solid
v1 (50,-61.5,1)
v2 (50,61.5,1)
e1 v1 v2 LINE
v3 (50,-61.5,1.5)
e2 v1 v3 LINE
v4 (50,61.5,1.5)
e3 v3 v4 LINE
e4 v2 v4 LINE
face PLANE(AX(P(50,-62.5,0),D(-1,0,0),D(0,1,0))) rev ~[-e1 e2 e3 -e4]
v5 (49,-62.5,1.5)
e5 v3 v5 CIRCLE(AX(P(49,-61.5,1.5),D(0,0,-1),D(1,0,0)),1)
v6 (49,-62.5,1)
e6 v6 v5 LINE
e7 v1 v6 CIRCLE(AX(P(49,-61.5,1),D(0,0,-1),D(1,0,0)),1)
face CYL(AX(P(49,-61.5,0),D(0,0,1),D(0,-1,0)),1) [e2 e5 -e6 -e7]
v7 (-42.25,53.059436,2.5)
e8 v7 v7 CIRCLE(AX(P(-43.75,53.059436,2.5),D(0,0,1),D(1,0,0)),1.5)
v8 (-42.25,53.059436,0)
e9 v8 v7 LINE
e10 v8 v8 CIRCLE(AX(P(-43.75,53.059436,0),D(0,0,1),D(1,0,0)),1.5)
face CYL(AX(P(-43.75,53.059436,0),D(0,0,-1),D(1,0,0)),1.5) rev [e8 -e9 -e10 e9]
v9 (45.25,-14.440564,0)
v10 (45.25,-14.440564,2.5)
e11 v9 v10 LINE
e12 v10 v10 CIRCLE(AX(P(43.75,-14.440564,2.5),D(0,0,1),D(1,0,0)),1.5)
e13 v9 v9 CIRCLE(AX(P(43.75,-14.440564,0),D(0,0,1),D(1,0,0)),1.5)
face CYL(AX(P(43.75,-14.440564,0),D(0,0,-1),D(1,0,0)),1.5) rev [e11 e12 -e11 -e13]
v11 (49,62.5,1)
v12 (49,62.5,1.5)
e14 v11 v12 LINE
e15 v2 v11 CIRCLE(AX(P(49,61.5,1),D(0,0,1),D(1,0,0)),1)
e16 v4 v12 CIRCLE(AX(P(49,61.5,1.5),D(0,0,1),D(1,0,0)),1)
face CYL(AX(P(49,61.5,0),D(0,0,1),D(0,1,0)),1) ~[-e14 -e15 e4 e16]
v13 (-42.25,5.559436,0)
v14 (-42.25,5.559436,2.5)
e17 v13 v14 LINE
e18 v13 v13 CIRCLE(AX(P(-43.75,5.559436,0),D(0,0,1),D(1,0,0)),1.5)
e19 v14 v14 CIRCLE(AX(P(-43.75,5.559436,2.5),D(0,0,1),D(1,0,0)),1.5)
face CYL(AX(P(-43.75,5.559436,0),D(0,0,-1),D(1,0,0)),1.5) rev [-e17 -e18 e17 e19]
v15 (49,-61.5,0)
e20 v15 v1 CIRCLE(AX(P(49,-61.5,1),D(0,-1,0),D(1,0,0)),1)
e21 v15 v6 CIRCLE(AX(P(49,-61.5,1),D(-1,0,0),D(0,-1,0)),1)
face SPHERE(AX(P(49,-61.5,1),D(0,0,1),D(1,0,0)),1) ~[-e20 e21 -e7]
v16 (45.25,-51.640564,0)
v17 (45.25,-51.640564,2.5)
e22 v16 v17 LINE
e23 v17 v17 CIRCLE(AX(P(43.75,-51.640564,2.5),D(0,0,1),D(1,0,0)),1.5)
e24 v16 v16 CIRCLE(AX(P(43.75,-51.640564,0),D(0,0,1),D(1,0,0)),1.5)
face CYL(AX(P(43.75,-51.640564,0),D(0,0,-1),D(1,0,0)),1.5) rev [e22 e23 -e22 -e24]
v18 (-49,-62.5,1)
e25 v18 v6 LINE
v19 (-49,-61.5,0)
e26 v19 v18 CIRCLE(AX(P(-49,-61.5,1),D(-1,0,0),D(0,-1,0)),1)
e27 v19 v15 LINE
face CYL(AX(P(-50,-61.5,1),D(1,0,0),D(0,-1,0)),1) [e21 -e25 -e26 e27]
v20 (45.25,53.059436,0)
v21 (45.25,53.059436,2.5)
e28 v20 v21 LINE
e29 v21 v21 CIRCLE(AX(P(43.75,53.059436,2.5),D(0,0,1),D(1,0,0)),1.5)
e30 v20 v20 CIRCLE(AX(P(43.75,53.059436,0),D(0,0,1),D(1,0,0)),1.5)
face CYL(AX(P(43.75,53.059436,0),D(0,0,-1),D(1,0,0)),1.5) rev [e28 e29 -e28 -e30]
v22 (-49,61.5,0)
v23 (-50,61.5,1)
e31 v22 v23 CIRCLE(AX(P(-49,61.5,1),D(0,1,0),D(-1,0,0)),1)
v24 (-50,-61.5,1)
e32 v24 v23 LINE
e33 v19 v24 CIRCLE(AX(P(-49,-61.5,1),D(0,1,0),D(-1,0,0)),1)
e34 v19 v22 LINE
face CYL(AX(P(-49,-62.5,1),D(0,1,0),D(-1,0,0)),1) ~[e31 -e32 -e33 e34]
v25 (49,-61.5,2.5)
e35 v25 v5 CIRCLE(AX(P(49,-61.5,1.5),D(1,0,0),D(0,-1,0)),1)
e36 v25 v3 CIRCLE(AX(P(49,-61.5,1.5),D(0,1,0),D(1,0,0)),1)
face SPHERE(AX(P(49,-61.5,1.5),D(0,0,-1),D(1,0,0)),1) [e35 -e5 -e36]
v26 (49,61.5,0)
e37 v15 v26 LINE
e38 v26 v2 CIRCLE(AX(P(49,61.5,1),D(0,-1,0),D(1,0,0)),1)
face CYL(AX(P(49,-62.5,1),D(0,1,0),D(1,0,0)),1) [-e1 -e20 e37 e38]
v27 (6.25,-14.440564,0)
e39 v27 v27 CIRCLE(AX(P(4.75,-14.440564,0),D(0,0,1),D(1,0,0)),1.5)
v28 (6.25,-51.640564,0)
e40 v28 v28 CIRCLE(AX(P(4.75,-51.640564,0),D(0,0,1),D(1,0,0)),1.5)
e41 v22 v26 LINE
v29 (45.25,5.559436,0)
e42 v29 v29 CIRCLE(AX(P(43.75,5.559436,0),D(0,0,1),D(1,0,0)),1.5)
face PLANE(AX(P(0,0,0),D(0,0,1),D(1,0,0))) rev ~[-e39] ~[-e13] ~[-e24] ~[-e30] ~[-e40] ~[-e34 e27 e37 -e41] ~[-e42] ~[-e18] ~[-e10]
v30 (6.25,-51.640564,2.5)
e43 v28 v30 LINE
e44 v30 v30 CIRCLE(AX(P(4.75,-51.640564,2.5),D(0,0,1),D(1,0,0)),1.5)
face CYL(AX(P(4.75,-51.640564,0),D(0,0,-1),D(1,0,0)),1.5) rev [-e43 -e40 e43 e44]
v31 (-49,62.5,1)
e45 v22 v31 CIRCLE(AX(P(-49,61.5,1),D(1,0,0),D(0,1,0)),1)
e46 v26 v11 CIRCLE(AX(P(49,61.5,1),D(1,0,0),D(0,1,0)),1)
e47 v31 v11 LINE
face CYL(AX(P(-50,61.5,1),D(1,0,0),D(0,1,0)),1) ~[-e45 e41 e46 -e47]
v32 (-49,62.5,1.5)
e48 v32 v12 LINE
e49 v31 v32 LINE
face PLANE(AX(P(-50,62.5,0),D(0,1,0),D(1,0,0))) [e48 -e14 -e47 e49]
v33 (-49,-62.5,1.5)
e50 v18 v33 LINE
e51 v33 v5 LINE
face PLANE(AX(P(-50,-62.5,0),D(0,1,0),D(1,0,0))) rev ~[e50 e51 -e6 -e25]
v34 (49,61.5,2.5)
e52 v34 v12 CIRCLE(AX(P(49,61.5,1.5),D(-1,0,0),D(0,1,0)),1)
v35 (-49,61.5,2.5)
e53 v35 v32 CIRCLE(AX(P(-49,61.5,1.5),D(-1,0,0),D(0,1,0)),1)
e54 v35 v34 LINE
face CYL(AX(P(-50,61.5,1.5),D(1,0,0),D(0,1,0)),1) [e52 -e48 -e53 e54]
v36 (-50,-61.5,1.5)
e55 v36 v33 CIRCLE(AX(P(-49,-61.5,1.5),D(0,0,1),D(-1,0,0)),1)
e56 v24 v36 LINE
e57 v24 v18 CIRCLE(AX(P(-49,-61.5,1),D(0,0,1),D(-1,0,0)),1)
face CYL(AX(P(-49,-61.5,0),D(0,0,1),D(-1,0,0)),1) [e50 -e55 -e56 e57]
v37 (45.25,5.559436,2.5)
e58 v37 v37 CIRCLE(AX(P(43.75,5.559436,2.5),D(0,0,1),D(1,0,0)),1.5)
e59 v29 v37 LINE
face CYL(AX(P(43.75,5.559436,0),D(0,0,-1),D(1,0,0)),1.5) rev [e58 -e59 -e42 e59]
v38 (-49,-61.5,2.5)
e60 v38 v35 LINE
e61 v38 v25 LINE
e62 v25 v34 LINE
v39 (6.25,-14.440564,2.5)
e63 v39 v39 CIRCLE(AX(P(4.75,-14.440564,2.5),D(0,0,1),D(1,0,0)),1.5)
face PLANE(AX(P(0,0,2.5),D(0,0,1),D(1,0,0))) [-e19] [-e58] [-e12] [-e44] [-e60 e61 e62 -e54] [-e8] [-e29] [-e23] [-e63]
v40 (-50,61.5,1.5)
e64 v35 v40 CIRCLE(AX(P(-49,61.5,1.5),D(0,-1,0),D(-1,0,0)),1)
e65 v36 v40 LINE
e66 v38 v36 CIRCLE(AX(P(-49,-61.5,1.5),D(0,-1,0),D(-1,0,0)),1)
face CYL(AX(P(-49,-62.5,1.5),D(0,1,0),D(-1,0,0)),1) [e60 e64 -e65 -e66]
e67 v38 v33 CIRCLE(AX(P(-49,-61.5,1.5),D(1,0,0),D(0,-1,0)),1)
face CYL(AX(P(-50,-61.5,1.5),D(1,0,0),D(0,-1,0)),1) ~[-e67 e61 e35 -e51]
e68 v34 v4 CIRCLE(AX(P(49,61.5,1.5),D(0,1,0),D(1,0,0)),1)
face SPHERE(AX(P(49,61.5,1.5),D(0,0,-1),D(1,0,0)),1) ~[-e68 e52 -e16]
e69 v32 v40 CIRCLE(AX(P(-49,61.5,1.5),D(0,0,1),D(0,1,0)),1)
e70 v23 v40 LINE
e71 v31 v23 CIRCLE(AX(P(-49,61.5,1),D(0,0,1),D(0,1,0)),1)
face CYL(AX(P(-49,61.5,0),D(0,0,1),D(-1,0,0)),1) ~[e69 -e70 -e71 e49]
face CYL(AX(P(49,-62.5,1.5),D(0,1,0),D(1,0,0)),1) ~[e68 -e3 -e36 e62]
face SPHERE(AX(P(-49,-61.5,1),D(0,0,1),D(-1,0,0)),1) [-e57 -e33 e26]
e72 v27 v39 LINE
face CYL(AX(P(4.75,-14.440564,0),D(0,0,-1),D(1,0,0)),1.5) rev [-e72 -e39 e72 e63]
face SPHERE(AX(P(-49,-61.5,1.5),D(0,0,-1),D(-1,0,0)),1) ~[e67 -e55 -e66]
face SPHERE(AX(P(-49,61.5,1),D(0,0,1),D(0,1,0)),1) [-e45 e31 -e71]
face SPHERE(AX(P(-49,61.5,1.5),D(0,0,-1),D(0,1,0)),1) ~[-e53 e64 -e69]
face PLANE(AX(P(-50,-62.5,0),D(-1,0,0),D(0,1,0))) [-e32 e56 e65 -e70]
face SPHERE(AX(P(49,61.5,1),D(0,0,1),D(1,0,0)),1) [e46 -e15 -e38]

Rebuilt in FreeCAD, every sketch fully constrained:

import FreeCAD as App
import Part
import Sketcher
from FreeCAD import Vector
Q = App.Units.Quantity


def edges_at(feature, points):
    """Names of the edges that pass closest to the given points."""
    edges = feature.Shape.Edges
    near = lambda p: min(range(len(edges)), key=lambda i: edges[i].distToShape(Part.Vertex(*p))[0])
    return sorted({f"Edge{near(p) + 1}" for p in points})

doc = App.newDocument("Part")
body = doc.addObject("PartDesign::Body", "Body")

# Sketch on XY plane
sketch1 = doc.addObject("Sketcher::SketchObject", "Sketch")
body.addObject(sketch1)
sketch1.AttachmentSupport = (doc.XY_Plane, [""])
sketch1.MapMode = "FlatFace"
sketch1.addGeometry([
    Part.LineSegment(Vector(-50, 62.5, 0), Vector(-50, -62.5, 0)),  # 0
    Part.LineSegment(Vector(-50, -62.5, 0), Vector(50, -62.5, 0)),  # 1
    Part.LineSegment(Vector(50, -62.5, 0), Vector(50, 62.5, 0)),  # 2
    Part.LineSegment(Vector(50, 62.5, 0), Vector(-50, 62.5, 0)),  # 3
    Part.Circle(Vector(4.8, -51.6, 0), Vector(0, 0, 1), 1.5),  # 4
    Part.Circle(Vector(43.8, -51.6, 0), Vector(0, 0, 1), 1.5),  # 5
    Part.Circle(Vector(4.8, -14.4, 0), Vector(0, 0, 1), 1.5),  # 6
    Part.Circle(Vector(43.8, -14.4, 0), Vector(0, 0, 1), 1.5),  # 7
    Part.Circle(Vector(-43.8, 5.6, 0), Vector(0, 0, 1), 1.5),  # 8
    Part.Circle(Vector(-43.8, 53.1, 0), Vector(0, 0, 1), 1.5),  # 9
    Part.Circle(Vector(43.8, 5.6, 0), Vector(0, 0, 1), 1.5),  # 10
    Part.Circle(Vector(43.8, 53.1, 0), Vector(0, 0, 1), 1.5),  # 11
], False)
sketch1.addConstraint([
    Sketcher.Constraint("Coincident", 0, 2, 1, 1),
    Sketcher.Constraint("Coincident", 1, 2, 2, 1),
    Sketcher.Constraint("Coincident", 2, 2, 3, 1),
    Sketcher.Constraint("Coincident", 3, 2, 0, 1),
    Sketcher.Constraint("Vertical", 0),
    Sketcher.Constraint("Horizontal", 1),
    Sketcher.Constraint("Vertical", 2),
    Sketcher.Constraint("Horizontal", 3),
    Sketcher.Constraint("Equal", 4, 5),
    Sketcher.Constraint("Equal", 5, 6),
    Sketcher.Constraint("Equal", 6, 7),
    Sketcher.Constraint("Equal", 7, 8),
    Sketcher.Constraint("Equal", 8, 9),
    Sketcher.Constraint("Equal", 9, 10),
    Sketcher.Constraint("Equal", 10, 11),
    Sketcher.Constraint("Symmetric", 0, 2, 2, 2, -1, 1),
    Sketcher.Constraint("Symmetric", 8, 3, 10, 3, -2),
    Sketcher.Constraint("Symmetric", 9, 3, 11, 3, -2),
    Sketcher.Constraint("Horizontal", 4, 3, 5, 3),
    Sketcher.Constraint("Horizontal", 6, 3, 7, 3),
    Sketcher.Constraint("Vertical", 4, 3, 6, 3),
    Sketcher.Constraint("Vertical", 5, 3, 7, 3),
    Sketcher.Constraint("Vertical", 8, 3, 9, 3),
    Sketcher.Constraint("Vertical", 7, 3, 10, 3),
    Sketcher.Constraint("Diameter", 4, Q("3 mm")),
    Sketcher.Constraint("DistanceX", 1, 1, 1, 2, Q("100 mm")),
    Sketcher.Constraint("DistanceY", 0, 2, 0, 1, Q("125 mm")),
    Sketcher.Constraint("DistanceX", 4, 3, 5, 3, Q("39 mm")),
    Sketcher.Constraint("DistanceY", 6, 3, 8, 3, Q("20 mm")),
    Sketcher.Constraint("DistanceY", 4, 3, 6, 3, Q("37.2 mm")),
    Sketcher.Constraint("DistanceX", 8, 3, 6, 3, Q("48.5 mm")),
    Sketcher.Constraint("DistanceY", 8, 3, 9, 3, Q("47.5 mm")),
    Sketcher.Constraint("DistanceY", 4, 3, -1, 1, Q("51.640564 mm")),
])
pad1 = doc.addObject("PartDesign::Pad", "Pad")
body.addObject(pad1)
pad1.Profile = sketch1
pad1.Length = 2.5
doc.recompute()

fillet = doc.addObject("PartDesign::Fillet", "Fillet")
body.addObject(fillet)
fillet.Base = (pad1, edges_at(pad1, [
    (50, 62.5, 1.25),
    (50, -62.5, 1.25),
    (50, 0, 0),
    (50, 0, 2.5),
    (-50, 62.5, 1.25),
    (0, 62.5, 0),
    (0, 62.5, 2.5),
    (-50, -62.5, 1.25),
    (-50, 0, 0),
    (-50, 0, 2.5),
    (0, -62.5, 0),
    (0, -62.5, 2.5),
]))
fillet.Radius = 1

doc.recompute()
